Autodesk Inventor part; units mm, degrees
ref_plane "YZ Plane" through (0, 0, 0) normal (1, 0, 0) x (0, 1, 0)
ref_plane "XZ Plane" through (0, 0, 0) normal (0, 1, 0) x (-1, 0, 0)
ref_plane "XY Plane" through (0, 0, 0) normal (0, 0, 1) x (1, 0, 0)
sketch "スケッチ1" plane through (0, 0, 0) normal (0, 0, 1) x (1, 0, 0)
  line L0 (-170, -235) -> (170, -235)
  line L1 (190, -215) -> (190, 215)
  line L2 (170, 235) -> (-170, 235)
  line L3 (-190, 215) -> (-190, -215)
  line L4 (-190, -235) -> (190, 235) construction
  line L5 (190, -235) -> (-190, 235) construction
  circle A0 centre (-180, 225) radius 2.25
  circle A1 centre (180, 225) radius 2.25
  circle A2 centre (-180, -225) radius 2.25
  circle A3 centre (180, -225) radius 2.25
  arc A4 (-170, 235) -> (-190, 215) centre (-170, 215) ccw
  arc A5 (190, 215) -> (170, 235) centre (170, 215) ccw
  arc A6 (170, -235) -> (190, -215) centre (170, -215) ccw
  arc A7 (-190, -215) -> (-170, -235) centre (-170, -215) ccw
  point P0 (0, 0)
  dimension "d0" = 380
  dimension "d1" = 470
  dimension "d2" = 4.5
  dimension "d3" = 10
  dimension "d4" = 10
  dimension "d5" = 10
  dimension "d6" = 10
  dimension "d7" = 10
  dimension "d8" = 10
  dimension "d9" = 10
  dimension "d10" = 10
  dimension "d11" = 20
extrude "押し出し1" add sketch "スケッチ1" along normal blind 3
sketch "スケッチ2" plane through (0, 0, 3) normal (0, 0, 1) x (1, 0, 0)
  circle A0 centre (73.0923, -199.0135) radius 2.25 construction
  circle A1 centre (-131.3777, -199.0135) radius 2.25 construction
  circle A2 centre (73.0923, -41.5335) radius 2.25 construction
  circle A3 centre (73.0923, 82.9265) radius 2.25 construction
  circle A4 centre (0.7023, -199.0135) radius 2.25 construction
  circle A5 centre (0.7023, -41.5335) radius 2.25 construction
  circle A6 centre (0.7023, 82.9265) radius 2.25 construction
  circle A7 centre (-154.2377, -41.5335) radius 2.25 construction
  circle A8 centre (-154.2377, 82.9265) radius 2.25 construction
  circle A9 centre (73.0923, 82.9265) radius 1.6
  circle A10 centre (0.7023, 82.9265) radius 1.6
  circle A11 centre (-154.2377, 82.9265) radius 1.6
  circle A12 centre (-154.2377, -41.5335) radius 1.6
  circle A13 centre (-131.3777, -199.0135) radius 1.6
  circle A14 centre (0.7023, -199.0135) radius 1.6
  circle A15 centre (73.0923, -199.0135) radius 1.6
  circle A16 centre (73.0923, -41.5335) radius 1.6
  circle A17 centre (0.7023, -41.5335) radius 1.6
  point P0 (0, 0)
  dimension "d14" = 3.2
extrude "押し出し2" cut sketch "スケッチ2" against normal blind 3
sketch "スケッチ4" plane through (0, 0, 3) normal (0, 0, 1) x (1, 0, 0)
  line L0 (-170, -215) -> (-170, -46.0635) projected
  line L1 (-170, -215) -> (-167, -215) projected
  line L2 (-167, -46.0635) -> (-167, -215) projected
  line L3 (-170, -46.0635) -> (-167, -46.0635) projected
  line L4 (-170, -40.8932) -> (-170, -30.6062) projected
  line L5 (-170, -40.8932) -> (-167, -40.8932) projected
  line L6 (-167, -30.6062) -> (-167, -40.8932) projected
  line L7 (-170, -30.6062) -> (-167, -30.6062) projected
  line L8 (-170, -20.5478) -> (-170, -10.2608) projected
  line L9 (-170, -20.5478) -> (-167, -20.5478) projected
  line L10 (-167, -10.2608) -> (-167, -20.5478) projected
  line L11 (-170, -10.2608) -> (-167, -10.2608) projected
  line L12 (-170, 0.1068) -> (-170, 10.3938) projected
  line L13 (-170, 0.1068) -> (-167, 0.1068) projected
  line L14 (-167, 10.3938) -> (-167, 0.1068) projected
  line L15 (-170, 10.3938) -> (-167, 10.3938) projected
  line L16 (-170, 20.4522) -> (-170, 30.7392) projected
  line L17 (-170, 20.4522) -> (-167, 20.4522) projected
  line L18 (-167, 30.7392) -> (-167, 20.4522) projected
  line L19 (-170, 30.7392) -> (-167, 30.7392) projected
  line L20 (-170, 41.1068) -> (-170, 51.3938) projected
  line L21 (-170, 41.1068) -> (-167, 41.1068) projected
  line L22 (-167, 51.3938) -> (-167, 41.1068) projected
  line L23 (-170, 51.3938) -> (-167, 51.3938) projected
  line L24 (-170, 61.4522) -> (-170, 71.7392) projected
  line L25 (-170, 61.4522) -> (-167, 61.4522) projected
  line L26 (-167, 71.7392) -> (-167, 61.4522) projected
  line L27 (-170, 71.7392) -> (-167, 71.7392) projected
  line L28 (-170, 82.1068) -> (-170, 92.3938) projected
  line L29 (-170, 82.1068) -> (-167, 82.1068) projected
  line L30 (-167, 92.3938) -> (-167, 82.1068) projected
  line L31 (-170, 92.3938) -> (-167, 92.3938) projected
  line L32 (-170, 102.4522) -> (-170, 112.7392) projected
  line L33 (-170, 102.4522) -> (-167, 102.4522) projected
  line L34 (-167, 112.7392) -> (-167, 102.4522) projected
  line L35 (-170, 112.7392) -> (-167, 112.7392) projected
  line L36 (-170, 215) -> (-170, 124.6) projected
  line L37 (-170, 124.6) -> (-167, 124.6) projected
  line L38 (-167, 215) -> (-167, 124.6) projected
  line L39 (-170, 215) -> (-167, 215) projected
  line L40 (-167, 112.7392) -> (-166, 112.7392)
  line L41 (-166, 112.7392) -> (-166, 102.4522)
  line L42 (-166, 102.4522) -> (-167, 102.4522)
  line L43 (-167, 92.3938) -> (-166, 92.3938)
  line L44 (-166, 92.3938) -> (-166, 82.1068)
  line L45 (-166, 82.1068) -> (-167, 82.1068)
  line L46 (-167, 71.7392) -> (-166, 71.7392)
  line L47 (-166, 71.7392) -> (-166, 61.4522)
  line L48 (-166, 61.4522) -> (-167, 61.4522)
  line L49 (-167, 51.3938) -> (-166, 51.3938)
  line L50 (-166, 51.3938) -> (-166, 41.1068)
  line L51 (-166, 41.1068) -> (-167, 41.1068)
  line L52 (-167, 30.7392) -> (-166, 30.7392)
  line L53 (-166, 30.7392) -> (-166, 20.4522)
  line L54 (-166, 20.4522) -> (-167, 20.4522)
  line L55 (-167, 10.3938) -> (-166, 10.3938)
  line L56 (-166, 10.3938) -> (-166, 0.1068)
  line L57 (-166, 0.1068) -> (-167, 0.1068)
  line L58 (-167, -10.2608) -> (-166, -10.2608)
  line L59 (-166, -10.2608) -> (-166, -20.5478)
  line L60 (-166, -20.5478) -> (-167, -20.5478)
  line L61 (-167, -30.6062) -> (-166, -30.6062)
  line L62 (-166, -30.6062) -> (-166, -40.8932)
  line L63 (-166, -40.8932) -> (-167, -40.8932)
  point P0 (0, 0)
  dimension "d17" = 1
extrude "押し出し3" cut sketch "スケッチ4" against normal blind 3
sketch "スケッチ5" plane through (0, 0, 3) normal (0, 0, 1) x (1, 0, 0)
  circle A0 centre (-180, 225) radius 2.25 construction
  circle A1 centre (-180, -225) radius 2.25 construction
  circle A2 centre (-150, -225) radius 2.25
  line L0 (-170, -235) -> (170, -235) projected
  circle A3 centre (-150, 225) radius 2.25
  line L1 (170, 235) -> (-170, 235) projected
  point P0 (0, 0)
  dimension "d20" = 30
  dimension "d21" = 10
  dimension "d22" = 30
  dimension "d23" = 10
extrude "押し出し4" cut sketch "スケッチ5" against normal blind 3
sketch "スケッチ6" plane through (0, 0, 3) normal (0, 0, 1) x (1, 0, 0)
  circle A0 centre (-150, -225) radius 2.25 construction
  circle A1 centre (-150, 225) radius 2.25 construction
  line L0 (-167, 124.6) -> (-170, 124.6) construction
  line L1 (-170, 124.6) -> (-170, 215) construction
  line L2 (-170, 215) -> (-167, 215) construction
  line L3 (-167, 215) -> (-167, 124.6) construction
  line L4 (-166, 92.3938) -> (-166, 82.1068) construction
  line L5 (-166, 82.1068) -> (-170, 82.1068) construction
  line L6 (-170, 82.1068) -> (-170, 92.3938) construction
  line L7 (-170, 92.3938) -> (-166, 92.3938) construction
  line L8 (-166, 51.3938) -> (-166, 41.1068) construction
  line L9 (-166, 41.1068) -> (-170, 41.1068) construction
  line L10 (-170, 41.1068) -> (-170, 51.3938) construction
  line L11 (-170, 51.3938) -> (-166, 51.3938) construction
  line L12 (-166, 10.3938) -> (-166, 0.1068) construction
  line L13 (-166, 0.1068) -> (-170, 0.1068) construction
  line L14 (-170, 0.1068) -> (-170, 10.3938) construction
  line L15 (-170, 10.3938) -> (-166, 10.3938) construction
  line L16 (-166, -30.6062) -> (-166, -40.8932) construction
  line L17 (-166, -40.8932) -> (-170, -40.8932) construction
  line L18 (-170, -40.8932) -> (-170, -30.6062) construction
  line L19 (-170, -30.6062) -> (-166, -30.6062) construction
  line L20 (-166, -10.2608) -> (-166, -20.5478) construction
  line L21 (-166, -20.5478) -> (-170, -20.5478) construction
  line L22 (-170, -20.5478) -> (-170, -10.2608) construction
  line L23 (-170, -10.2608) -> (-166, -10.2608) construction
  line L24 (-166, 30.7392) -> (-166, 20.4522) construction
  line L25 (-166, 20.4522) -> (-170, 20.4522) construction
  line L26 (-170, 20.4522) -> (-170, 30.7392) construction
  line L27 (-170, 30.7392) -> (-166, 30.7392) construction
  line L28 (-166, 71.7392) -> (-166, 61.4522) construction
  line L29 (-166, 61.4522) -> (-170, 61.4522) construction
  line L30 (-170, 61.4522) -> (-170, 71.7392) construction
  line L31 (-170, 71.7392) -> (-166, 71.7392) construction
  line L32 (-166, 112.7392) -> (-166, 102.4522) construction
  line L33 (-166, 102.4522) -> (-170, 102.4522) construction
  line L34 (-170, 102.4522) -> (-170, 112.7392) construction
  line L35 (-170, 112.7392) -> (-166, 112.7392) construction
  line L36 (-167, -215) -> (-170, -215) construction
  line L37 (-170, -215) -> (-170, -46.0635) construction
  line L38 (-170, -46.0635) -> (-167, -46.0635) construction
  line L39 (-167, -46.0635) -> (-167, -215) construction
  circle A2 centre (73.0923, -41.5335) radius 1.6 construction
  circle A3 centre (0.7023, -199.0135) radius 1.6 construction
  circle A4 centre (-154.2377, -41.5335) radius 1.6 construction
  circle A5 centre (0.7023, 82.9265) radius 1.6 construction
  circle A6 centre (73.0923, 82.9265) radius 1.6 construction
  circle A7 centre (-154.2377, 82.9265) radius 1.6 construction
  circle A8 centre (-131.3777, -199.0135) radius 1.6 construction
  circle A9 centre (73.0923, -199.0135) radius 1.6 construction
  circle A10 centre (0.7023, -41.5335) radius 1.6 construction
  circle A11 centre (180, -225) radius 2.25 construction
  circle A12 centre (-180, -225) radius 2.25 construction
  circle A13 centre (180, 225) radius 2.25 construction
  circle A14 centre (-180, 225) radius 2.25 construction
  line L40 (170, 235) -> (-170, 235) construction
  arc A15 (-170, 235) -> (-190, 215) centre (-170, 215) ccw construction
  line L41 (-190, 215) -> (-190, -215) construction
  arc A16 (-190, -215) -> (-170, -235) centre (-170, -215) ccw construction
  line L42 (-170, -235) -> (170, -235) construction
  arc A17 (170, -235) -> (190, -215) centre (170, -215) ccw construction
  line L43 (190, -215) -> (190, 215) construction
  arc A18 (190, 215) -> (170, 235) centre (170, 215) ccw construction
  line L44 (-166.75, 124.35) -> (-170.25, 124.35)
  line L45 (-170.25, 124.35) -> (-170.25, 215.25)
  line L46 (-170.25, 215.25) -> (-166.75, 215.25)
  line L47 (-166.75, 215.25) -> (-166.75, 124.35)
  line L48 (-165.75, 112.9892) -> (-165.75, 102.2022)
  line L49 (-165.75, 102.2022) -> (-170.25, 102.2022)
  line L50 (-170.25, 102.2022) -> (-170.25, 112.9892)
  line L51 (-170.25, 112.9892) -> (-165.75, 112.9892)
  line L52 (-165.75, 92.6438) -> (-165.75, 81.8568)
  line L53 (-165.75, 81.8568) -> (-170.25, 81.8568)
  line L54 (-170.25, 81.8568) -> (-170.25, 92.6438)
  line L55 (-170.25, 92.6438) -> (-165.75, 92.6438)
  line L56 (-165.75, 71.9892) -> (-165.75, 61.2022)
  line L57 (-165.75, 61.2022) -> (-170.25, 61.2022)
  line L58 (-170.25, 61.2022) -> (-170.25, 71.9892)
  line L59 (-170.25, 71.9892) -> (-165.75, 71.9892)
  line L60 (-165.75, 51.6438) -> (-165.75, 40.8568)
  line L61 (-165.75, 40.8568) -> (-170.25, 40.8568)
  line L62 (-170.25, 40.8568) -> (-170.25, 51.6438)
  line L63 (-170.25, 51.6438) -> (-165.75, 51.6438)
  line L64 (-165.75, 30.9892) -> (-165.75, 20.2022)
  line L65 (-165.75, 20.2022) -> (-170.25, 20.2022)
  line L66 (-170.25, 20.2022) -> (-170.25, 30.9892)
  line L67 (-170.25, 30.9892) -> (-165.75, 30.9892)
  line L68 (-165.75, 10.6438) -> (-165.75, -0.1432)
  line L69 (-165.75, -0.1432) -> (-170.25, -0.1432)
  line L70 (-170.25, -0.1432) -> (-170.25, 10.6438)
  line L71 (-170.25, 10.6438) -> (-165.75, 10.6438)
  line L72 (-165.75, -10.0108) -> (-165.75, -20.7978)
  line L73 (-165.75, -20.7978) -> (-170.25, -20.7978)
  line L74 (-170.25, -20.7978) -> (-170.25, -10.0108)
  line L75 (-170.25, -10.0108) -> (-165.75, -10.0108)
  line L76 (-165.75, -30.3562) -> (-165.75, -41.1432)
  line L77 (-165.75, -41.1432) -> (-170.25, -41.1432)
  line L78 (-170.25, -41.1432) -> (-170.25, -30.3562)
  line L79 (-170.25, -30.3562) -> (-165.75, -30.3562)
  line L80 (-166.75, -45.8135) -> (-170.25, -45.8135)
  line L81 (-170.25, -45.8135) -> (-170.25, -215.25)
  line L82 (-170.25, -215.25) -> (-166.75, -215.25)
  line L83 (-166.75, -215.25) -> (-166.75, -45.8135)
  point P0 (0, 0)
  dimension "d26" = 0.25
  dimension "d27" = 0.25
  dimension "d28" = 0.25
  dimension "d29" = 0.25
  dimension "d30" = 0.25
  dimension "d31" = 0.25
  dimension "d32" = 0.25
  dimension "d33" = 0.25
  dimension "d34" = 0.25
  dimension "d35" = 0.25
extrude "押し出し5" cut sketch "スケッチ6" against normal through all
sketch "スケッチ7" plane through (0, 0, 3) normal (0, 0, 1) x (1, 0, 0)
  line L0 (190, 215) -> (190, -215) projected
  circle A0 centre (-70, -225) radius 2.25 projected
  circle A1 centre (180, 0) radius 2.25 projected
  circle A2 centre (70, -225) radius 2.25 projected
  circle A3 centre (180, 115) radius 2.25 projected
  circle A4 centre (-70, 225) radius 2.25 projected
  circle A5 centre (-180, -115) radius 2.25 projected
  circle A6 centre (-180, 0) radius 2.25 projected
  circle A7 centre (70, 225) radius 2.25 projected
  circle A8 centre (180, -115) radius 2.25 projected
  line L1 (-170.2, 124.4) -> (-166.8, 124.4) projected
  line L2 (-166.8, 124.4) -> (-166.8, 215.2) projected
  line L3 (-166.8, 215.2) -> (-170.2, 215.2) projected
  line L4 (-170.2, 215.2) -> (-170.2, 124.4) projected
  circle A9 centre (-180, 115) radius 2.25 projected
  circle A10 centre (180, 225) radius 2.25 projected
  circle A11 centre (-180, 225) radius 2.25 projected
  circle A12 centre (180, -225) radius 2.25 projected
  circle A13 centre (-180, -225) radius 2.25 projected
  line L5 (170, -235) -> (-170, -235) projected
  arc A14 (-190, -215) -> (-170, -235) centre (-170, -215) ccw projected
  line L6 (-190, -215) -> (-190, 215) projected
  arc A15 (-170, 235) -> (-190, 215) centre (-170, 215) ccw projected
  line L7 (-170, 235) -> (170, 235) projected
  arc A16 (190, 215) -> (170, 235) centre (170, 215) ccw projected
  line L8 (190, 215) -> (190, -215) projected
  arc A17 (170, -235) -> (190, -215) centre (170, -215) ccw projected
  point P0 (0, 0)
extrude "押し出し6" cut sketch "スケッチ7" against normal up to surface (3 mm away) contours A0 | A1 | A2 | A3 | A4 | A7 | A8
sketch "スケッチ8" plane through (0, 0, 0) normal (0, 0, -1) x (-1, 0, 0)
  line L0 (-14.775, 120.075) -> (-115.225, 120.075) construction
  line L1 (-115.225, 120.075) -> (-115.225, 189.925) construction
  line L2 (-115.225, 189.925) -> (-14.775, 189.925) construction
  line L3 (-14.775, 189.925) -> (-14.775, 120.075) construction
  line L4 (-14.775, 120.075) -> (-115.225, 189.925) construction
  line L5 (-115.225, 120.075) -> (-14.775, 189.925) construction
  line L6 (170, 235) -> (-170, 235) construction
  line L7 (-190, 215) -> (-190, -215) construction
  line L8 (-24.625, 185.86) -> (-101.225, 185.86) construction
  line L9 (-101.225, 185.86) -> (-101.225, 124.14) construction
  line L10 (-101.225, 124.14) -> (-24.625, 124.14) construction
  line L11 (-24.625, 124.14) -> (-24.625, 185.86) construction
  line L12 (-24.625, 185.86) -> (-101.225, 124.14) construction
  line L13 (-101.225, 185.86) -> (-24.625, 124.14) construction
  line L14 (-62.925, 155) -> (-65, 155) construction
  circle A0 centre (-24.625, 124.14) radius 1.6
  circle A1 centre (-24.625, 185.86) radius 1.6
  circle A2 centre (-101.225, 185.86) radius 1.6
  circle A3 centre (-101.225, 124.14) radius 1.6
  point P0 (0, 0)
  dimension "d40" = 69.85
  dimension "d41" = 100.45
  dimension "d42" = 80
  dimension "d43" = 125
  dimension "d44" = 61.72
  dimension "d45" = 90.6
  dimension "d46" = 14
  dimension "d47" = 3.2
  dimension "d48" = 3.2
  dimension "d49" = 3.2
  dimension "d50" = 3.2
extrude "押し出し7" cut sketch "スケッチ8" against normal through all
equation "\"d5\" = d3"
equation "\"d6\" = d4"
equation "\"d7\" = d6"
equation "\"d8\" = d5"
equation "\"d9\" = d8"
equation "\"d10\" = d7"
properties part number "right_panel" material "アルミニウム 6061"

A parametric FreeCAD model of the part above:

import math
import FreeCAD as App
import Part
import Sketcher
Q = App.Units.Quantity

doc = App.newDocument("Part")
body = doc.addObject("PartDesign::Body", "Body")

sketch1 = doc.addObject("Sketcher::SketchObject", "Sketch")
body.addObject(sketch1)
sketch1.AttachmentSupport = (doc.XY_Plane, [""])
sketch1.MapMode = "FlatFace"
sketch1.addGeometry(Part.ArcOfCircle(Part.Circle(App.Vector(-170, -215, 0), App.Vector(0, 0, 1), 20), math.radians(180), math.radians(270)), False)
sketch1.addGeometry(Part.LineSegment(App.Vector(-170, -235, 0), App.Vector(170, -235, 0)), False)
sketch1.addGeometry(Part.ArcOfCircle(Part.Circle(App.Vector(170, -215, 0), App.Vector(0, 0, 1), 20), math.radians(-90), math.radians(0)), False)
sketch1.addGeometry(Part.LineSegment(App.Vector(190, -215, 0), App.Vector(190, 215, 0)), False)
sketch1.addGeometry(Part.ArcOfCircle(Part.Circle(App.Vector(170, 215, 0), App.Vector(0, 0, 1), 20), math.radians(0), math.radians(90)), False)
sketch1.addGeometry(Part.LineSegment(App.Vector(170, 235, 0), App.Vector(-170, 235, 0)), False)
sketch1.addGeometry(Part.ArcOfCircle(Part.Circle(App.Vector(-170, 215, 0), App.Vector(0, 0, 1), 20), math.radians(90), math.radians(180)), False)
sketch1.addGeometry(Part.LineSegment(App.Vector(-190, 215, 0), App.Vector(-190, -215, 0)), False)
sketch1.addGeometry(Part.Circle(App.Vector(-180, -225, 0), App.Vector(0, 0, 1), 2.2), False)
sketch1.addGeometry(Part.Circle(App.Vector(180, -225, 0), App.Vector(0, 0, 1), 2.2), False)
sketch1.addGeometry(Part.Circle(App.Vector(-180, 225, 0), App.Vector(0, 0, 1), 2.2), False)
sketch1.addGeometry(Part.Circle(App.Vector(180, 225, 0), App.Vector(0, 0, 1), 2.2), False)
sketch1.addConstraint(Sketcher.Constraint("Tangent", 0, 2, 1, 1))
sketch1.addConstraint(Sketcher.Constraint("Tangent", 1, 2, 2, 1))
sketch1.addConstraint(Sketcher.Constraint("Tangent", 2, 2, 3, 1))
sketch1.addConstraint(Sketcher.Constraint("Tangent", 3, 2, 4, 1))
sketch1.addConstraint(Sketcher.Constraint("Tangent", 4, 2, 5, 1))
sketch1.addConstraint(Sketcher.Constraint("Tangent", 5, 2, 6, 1))
sketch1.addConstraint(Sketcher.Constraint("Tangent", 6, 2, 7, 1))
sketch1.addConstraint(Sketcher.Constraint("Tangent", 7, 2, 0, 1))
sketch1.addConstraint(Sketcher.Constraint("Horizontal", 1))
sketch1.addConstraint(Sketcher.Constraint("Vertical", 3))
sketch1.addConstraint(Sketcher.Constraint("Horizontal", 5))
sketch1.addConstraint(Sketcher.Constraint("Vertical", 7))
sketch1.addConstraint(Sketcher.Constraint("Equal", 0, 2))
sketch1.addConstraint(Sketcher.Constraint("Equal", 2, 4))
sketch1.addConstraint(Sketcher.Constraint("Equal", 4, 6))
sketch1.addConstraint(Sketcher.Constraint("Equal", 8, 9))
sketch1.addConstraint(Sketcher.Constraint("Equal", 9, 10))
sketch1.addConstraint(Sketcher.Constraint("Equal", 10, 11))
sketch1.addConstraint(Sketcher.Constraint("Symmetric", 0, 3, 4, 3, -1, 1))
sketch1.addConstraint(Sketcher.Constraint("Symmetric", 9, 3, 10, 3, -1, 1))
sketch1.addConstraint(Sketcher.Constraint("Symmetric", 8, 3, 11, 3, -1, 1))
sketch1.addConstraint(Sketcher.Constraint("Symmetric", 8, 3, 9, 3, -2))
sketch1.addConstraint(Sketcher.Constraint("Radius", 0, Q("20 mm")))
sketch1.addConstraint(Sketcher.Constraint("Diameter", 8, Q("4.5 mm")))
sketch1.addConstraint(Sketcher.Constraint("DistanceX", 8, 3, 0, 3, Q("10 mm")))
sketch1.addConstraint(Sketcher.Constraint("DistanceY", 8, 3, 0, 3, Q("10 mm")))
sketch1.addConstraint(Sketcher.Constraint("DistanceX", 1, 1, 1, 2, Q("340 mm")))
sketch1.addConstraint(Sketcher.Constraint("DistanceY", 3, 1, 3, 2, Q("430 mm")))
pad1 = doc.addObject("PartDesign::Pad", "Pad")
body.addObject(pad1)
pad1.Profile = sketch1
pad1.Length = 3

sketch2 = doc.addObject("Sketcher::SketchObject", "Sketch001")
body.addObject(sketch2)
sketch2.AttachmentSupport = (doc.XY_Plane, [""])
sketch2.MapMode = "FlatFace"
sketch2.AttachmentOffset = App.Placement(App.Vector(0, 0, 3), App.Rotation())
sketch2.addGeometry(Part.Circle(App.Vector(73.1, 82.9, 0), App.Vector(0, 0, 1), 1.6), False)
sketch2.addGeometry(Part.Circle(App.Vector(0.7, 82.9, 0), App.Vector(0, 0, 1), 1.6), False)
sketch2.addGeometry(Part.Circle(App.Vector(-154.2, 82.9, 0), App.Vector(0, 0, 1), 1.6), False)
sketch2.addGeometry(Part.Circle(App.Vector(-154.2, -41.5, 0), App.Vector(0, 0, 1), 1.6), False)
sketch2.addGeometry(Part.Circle(App.Vector(-131.4, -199, 0), App.Vector(0, 0, 1), 1.6), False)
sketch2.addGeometry(Part.Circle(App.Vector(0.7, -199, 0), App.Vector(0, 0, 1), 1.6), False)
sketch2.addGeometry(Part.Circle(App.Vector(73.1, -199, 0), App.Vector(0, 0, 1), 1.6), False)
sketch2.addGeometry(Part.Circle(App.Vector(73.1, -41.5, 0), App.Vector(0, 0, 1), 1.6), False)
sketch2.addGeometry(Part.Circle(App.Vector(0.7, -41.5, 0), App.Vector(0, 0, 1), 1.6), False)
sketch2.addConstraint(Sketcher.Constraint("Equal", 0, 1))
sketch2.addConstraint(Sketcher.Constraint("Equal", 1, 2))
sketch2.addConstraint(Sketcher.Constraint("Equal", 2, 3))
sketch2.addConstraint(Sketcher.Constraint("Equal", 3, 4))
sketch2.addConstraint(Sketcher.Constraint("Equal", 4, 5))
sketch2.addConstraint(Sketcher.Constraint("Equal", 5, 6))
sketch2.addConstraint(Sketcher.Constraint("Equal", 6, 7))
sketch2.addConstraint(Sketcher.Constraint("Equal", 7, 8))
sketch2.addConstraint(Sketcher.Constraint("Horizontal", 0, 3, 1, 3))
sketch2.addConstraint(Sketcher.Constraint("Horizontal", 1, 3, 2, 3))
sketch2.addConstraint(Sketcher.Constraint("Horizontal", 4, 3, 5, 3))
sketch2.addConstraint(Sketcher.Constraint("Horizontal", 5, 3, 6, 3))
sketch2.addConstraint(Sketcher.Constraint("Horizontal", 3, 3, 7, 3))
sketch2.addConstraint(Sketcher.Constraint("Horizontal", 7, 3, 8, 3))
sketch2.addConstraint(Sketcher.Constraint("Vertical", 2, 3, 3, 3))
sketch2.addConstraint(Sketcher.Constraint("Vertical", 1, 3, 5, 3))
sketch2.addConstraint(Sketcher.Constraint("Vertical", 0, 3, 6, 3))
sketch2.addConstraint(Sketcher.Constraint("Vertical", 6, 3, 7, 3))
sketch2.addConstraint(Sketcher.Constraint("Vertical", 5, 3, 8, 3))
sketch2.addConstraint(Sketcher.Constraint("Diameter", 0, Q("3.2 mm")))
sketch2.addConstraint(Sketcher.Constraint("DistanceX", 1, 3, 0, 3, Q("72.39 mm")))
sketch2.addConstraint(Sketcher.Constraint("DistanceX", 2, 3, 1, 3, Q("154.94 mm")))
sketch2.addConstraint(Sketcher.Constraint("DistanceY", 3, 3, 2, 3, Q("124.46 mm")))
sketch2.addConstraint(Sketcher.Constraint("DistanceX", 3, 3, 4, 3, Q("22.86 mm")))
sketch2.addConstraint(Sketcher.Constraint("DistanceY", 4, 3, 3, 3, Q("157.48 mm")))
sketch2.addConstraint(Sketcher.Constraint("DistanceX", -1, 1, 0, 3, Q("73.0923 mm")))
sketch2.addConstraint(Sketcher.Constraint("DistanceY", -1, 1, 0, 3, Q("82.9265 mm")))
pocket1 = doc.addObject("PartDesign::Pocket", "Pocket")
body.addObject(pocket1)
pocket1.Profile = sketch2
pocket1.Length = 3

sketch3 = doc.addObject("Sketcher::SketchObject", "Sketch002")
body.addObject(sketch3)
sketch3.AttachmentSupport = (doc.XY_Plane, [""])
sketch3.MapMode = "FlatFace"
sketch3.AttachmentOffset = App.Placement(App.Vector(0, 0, 3), App.Rotation())
sketch3.addGeometry(Part.LineSegment(App.Vector(-170, -46.1, 0), App.Vector(-170, -215, 0)), False)
sketch3.addGeometry(Part.LineSegment(App.Vector(-170, -215, 0), App.Vector(-167, -215, 0)), False)
sketch3.addGeometry(Part.LineSegment(App.Vector(-167, -215, 0), App.Vector(-167, -46.1, 0)), False)
sketch3.addGeometry(Part.LineSegment(App.Vector(-167, -46.1, 0), App.Vector(-170, -46.1, 0)), False)
sketch3.addGeometry(Part.LineSegment(App.Vector(-170, -30.6, 0), App.Vector(-170, -40.9, 0)), False)
sketch3.addGeometry(Part.LineSegment(App.Vector(-170, -40.9, 0), App.Vector(-166, -40.9, 0)), False)
sketch3.addGeometry(Part.LineSegment(App.Vector(-166, -40.9, 0), App.Vector(-166, -30.6, 0)), False)
sketch3.addGeometry(Part.LineSegment(App.Vector(-166, -30.6, 0), App.Vector(-170, -30.6, 0)), False)
sketch3.addGeometry(Part.LineSegment(App.Vector(-170, -10.3, 0), App.Vector(-170, -20.5, 0)), False)
sketch3.addGeometry(Part.LineSegment(App.Vector(-170, -20.5, 0), App.Vector(-166, -20.5, 0)), False)
sketch3.addGeometry(Part.LineSegment(App.Vector(-166, -20.5, 0), App.Vector(-166, -10.3, 0)), False)
sketch3.addGeometry(Part.LineSegment(App.Vector(-166, -10.3, 0), App.Vector(-170, -10.3, 0)), False)
sketch3.addGeometry(Part.LineSegment(App.Vector(-170, 10.4, 0), App.Vector(-170, 0.1, 0)), False)
sketch3.addGeometry(Part.LineSegment(App.Vector(-170, 0.1, 0), App.Vector(-166, 0.1, 0)), False)
sketch3.addGeometry(Part.LineSegment(App.Vector(-166, 0.1, 0), App.Vector(-166, 10.4, 0)), False)
sketch3.addGeometry(Part.LineSegment(App.Vector(-166, 10.4, 0), App.Vector(-170, 10.4, 0)), False)
sketch3.addGeometry(Part.LineSegment(App.Vector(-170, 30.7, 0), App.Vector(-170, 20.5, 0)), False)
sketch3.addGeometry(Part.LineSegment(App.Vector(-170, 20.5, 0), App.Vector(-166, 20.5, 0)), False)
sketch3.addGeometry(Part.LineSegment(App.Vector(-166, 20.5, 0), App.Vector(-166, 30.7, 0)), False)
sketch3.addGeometry(Part.LineSegment(App.Vector(-166, 30.7, 0), App.Vector(-170, 30.7, 0)), False)
sketch3.addGeometry(Part.LineSegment(App.Vector(-170, 51.4, 0), App.Vector(-170, 41.1, 0)), False)
sketch3.addGeometry(Part.LineSegment(App.Vector(-170, 41.1, 0), App.Vector(-166, 41.1, 0)), False)
sketch3.addGeometry(Part.LineSegment(App.Vector(-166, 41.1, 0), App.Vector(-166, 51.4, 0)), False)
sketch3.addGeometry(Part.LineSegment(App.Vector(-166, 51.4, 0), App.Vector(-170, 51.4, 0)), False)
sketch3.addGeometry(Part.LineSegment(App.Vector(-170, 71.7, 0), App.Vector(-170, 61.5, 0)), False)
sketch3.addGeometry(Part.LineSegment(App.Vector(-170, 61.5, 0), App.Vector(-166, 61.5, 0)), False)
sketch3.addGeometry(Part.LineSegment(App.Vector(-166, 61.5, 0), App.Vector(-166, 71.7, 0)), False)
sketch3.addGeometry(Part.LineSegment(App.Vector(-166, 71.7, 0), App.Vector(-170, 71.7, 0)), False)
sketch3.addGeometry(Part.LineSegment(App.Vector(-170, 92.4, 0), App.Vector(-170, 82.1, 0)), False)
sketch3.addGeometry(Part.LineSegment(App.Vector(-170, 82.1, 0), App.Vector(-166, 82.1, 0)), False)
sketch3.addGeometry(Part.LineSegment(App.Vector(-166, 82.1, 0), App.Vector(-166, 92.4, 0)), False)
sketch3.addGeometry(Part.LineSegment(App.Vector(-166, 92.4, 0), App.Vector(-170, 92.4, 0)), False)
sketch3.addGeometry(Part.LineSegment(App.Vector(-170, 112.7, 0), App.Vector(-170, 102.5, 0)), False)
sketch3.addGeometry(Part.LineSegment(App.Vector(-170, 102.5, 0), App.Vector(-166, 102.5, 0)), False)
sketch3.addGeometry(Part.LineSegment(App.Vector(-166, 102.5, 0), App.Vector(-166, 112.7, 0)), False)
sketch3.addGeometry(Part.LineSegment(App.Vector(-166, 112.7, 0), App.Vector(-170, 112.7, 0)), False)
sketch3.addGeometry(Part.LineSegment(App.Vector(-167, 215, 0), App.Vector(-170, 215, 0)), False)
sketch3.addGeometry(Part.LineSegment(App.Vector(-170, 215, 0), App.Vector(-170, 124.6, 0)), False)
sketch3.addGeometry(Part.LineSegment(App.Vector(-170, 124.6, 0), App.Vector(-167, 124.6, 0)), False)
sketch3.addGeometry(Part.LineSegment(App.Vector(-167, 124.6, 0), App.Vector(-167, 215, 0)), False)
sketch3.addConstraint(Sketcher.Constraint("Coincident", 0, 2, 1, 1))
sketch3.addConstraint(Sketcher.Constraint("Coincident", 1, 2, 2, 1))
sketch3.addConstraint(Sketcher.Constraint("Coincident", 2, 2, 3, 1))
sketch3.addConstraint(Sketcher.Constraint("Coincident", 3, 2, 0, 1))
sketch3.addConstraint(Sketcher.Constraint("Coincident", 4, 2, 5, 1))
sketch3.addConstraint(Sketcher.Constraint("Coincident", 5, 2, 6, 1))
sketch3.addConstraint(Sketcher.Constraint("Coincident", 6, 2, 7, 1))
sketch3.addConstraint(Sketcher.Constraint("Coincident", 7, 2, 4, 1))
sketch3.addConstraint(Sketcher.Constraint("Coincident", 8, 2, 9, 1))
sketch3.addConstraint(Sketcher.Constraint("Coincident", 9, 2, 10, 1))
sketch3.addConstraint(Sketcher.Constraint("Coincident", 10, 2, 11, 1))
sketch3.addConstraint(Sketcher.Constraint("Coincident", 11, 2, 8, 1))
sketch3.addConstraint(Sketcher.Constraint("Coincident", 12, 2, 13, 1))
sketch3.addConstraint(Sketcher.Constraint("Coincident", 13, 2, 14, 1))
sketch3.addConstraint(Sketcher.Constraint("Coincident", 14, 2, 15, 1))
sketch3.addConstraint(Sketcher.Constraint("Coincident", 15, 2, 12, 1))
sketch3.addConstraint(Sketcher.Constraint("Coincident", 16, 2, 17, 1))
sketch3.addConstraint(Sketcher.Constraint("Coincident", 17, 2, 18, 1))
sketch3.addConstraint(Sketcher.Constraint("Coincident", 18, 2, 19, 1))
sketch3.addConstraint(Sketcher.Constraint("Coincident", 19, 2, 16, 1))
sketch3.addConstraint(Sketcher.Constraint("Coincident", 20, 2, 21, 1))
sketch3.addConstraint(Sketcher.Constraint("Coincident", 21, 2, 22, 1))
sketch3.addConstraint(Sketcher.Constraint("Coincident", 22, 2, 23, 1))
sketch3.addConstraint(Sketcher.Constraint("Coincident", 23, 2, 20, 1))
sketch3.addConstraint(Sketcher.Constraint("Coincident", 24, 2, 25, 1))
sketch3.addConstraint(Sketcher.Constraint("Coincident", 25, 2, 26, 1))
sketch3.addConstraint(Sketcher.Constraint("Coincident", 26, 2, 27, 1))
sketch3.addConstraint(Sketcher.Constraint("Coincident", 27, 2, 24, 1))
sketch3.addConstraint(Sketcher.Constraint("Coincident", 28, 2, 29, 1))
sketch3.addConstraint(Sketcher.Constraint("Coincident", 29, 2, 30, 1))
sketch3.addConstraint(Sketcher.Constraint("Coincident", 30, 2, 31, 1))
sketch3.addConstraint(Sketcher.Constraint("Coincident", 31, 2, 28, 1))
sketch3.addConstraint(Sketcher.Constraint("Coincident", 32, 2, 33, 1))
sketch3.addConstraint(Sketcher.Constraint("Coincident", 33, 2, 34, 1))
sketch3.addConstraint(Sketcher.Constraint("Coincident", 34, 2, 35, 1))
sketch3.addConstraint(Sketcher.Constraint("Coincident", 35, 2, 32, 1))
sketch3.addConstraint(Sketcher.Constraint("Coincident", 36, 2, 37, 1))
sketch3.addConstraint(Sketcher.Constraint("Coincident", 37, 2, 38, 1))
sketch3.addConstraint(Sketcher.Constraint("Coincident", 38, 2, 39, 1))
sketch3.addConstraint(Sketcher.Constraint("Coincident", 39, 2, 36, 1))
sketch3.addConstraint(Sketcher.Constraint("Vertical", 0))
sketch3.addConstraint(Sketcher.Constraint("Horizontal", 1))
sketch3.addConstraint(Sketcher.Constraint("Vertical", 2))
sketch3.addConstraint(Sketcher.Constraint("Horizontal", 3))
sketch3.addConstraint(Sketcher.Constraint("Vertical", 4))
sketch3.addConstraint(Sketcher.Constraint("Horizontal", 5))
sketch3.addConstraint(Sketcher.Constraint("Vertical", 6))
sketch3.addConstraint(Sketcher.Constraint("Horizontal", 7))
sketch3.addConstraint(Sketcher.Constraint("Vertical", 8))
sketch3.addConstraint(Sketcher.Constraint("Horizontal", 9))
sketch3.addConstraint(Sketcher.Constraint("Vertical", 10))
sketch3.addConstraint(Sketcher.Constraint("Horizontal", 11))
sketch3.addConstraint(Sketcher.Constraint("Vertical", 12))
sketch3.addConstraint(Sketcher.Constraint("Horizontal", 13))
sketch3.addConstraint(Sketcher.Constraint("Vertical", 14))
sketch3.addConstraint(Sketcher.Constraint("Horizontal", 15))
sketch3.addConstraint(Sketcher.Constraint("Vertical", 16))
sketch3.addConstraint(Sketcher.Constraint("Horizontal", 17))
sketch3.addConstraint(Sketcher.Constraint("Vertical", 18))
sketch3.addConstraint(Sketcher.Constraint("Horizontal", 19))
sketch3.addConstraint(Sketcher.Constraint("Vertical", 20))
sketch3.addConstraint(Sketcher.Constraint("Horizontal", 21))
sketch3.addConstraint(Sketcher.Constraint("Vertical", 22))
sketch3.addConstraint(Sketcher.Constraint("Horizontal", 23))
sketch3.addConstraint(Sketcher.Constraint("Vertical", 24))
sketch3.addConstraint(Sketcher.Constraint("Horizontal", 25))
sketch3.addConstraint(Sketcher.Constraint("Vertical", 26))
sketch3.addConstraint(Sketcher.Constraint("Horizontal", 27))
sketch3.addConstraint(Sketcher.Constraint("Vertical", 28))
sketch3.addConstraint(Sketcher.Constraint("Horizontal", 29))
sketch3.addConstraint(Sketcher.Constraint("Vertical", 30))
sketch3.addConstraint(Sketcher.Constraint("Horizontal", 31))
sketch3.addConstraint(Sketcher.Constraint("Vertical", 32))
sketch3.addConstraint(Sketcher.Constraint("Horizontal", 33))
sketch3.addConstraint(Sketcher.Constraint("Vertical", 34))
sketch3.addConstraint(Sketcher.Constraint("Horizontal", 35))
sketch3.addConstraint(Sketcher.Constraint("Horizontal", 36))
sketch3.addConstraint(Sketcher.Constraint("Vertical", 37))
sketch3.addConstraint(Sketcher.Constraint("Horizontal", 38))
sketch3.addConstraint(Sketcher.Constraint("Vertical", 39))
sketch3.addConstraint(Sketcher.Constraint("Symmetric", 0, 2, 36, 2, -1))
sketch3.addConstraint(Sketcher.Constraint("Vertical", 3, 2, 4, 2))
sketch3.addConstraint(Sketcher.Constraint("Vertical", 7, 2, 8, 2))
sketch3.addConstraint(Sketcher.Constraint("Vertical", 6, 2, 9, 2))
sketch3.addConstraint(Sketcher.Constraint("Vertical", 11, 2, 12, 2))
sketch3.addConstraint(Sketcher.Constraint("Vertical", 10, 2, 13, 2))
sketch3.addConstraint(Sketcher.Constraint("Vertical", 15, 2, 16, 2))
sketch3.addConstraint(Sketcher.Constraint("Vertical", 14, 2, 17, 2))
sketch3.addConstraint(Sketcher.Constraint("Vertical", 19, 2, 20, 2))
sketch3.addConstraint(Sketcher.Constraint("Vertical", 18, 2, 21, 2))
sketch3.addConstraint(Sketcher.Constraint("Vertical", 23, 2, 24, 2))
sketch3.addConstraint(Sketcher.Constraint("Vertical", 22, 2, 25, 2))
sketch3.addConstraint(Sketcher.Constraint("Vertical", 27, 2, 28, 2))
sketch3.addConstraint(Sketcher.Constraint("Vertical", 26, 2, 29, 2))
sketch3.addConstraint(Sketcher.Constraint("Vertical", 31, 2, 32, 2))
sketch3.addConstraint(Sketcher.Constraint("Vertical", 30, 2, 33, 2))
sketch3.addConstraint(Sketcher.Constraint("Vertical", 2, 2, 38, 2))
sketch3.addConstraint(Sketcher.Constraint("Equal", 6, 8))
sketch3.addConstraint(Sketcher.Constraint("Equal", 10, 12))
sketch3.addConstraint(Sketcher.Constraint("Equal", 14, 16))
sketch3.addConstraint(Sketcher.Constraint("Equal", 18, 20))
sketch3.addConstraint(Sketcher.Constraint("Equal", 22, 24))
sketch3.addConstraint(Sketcher.Constraint("Equal", 26, 28))
sketch3.addConstraint(Sketcher.Constraint("Equal", 30, 32))
sketch3.addConstraint(Sketcher.Constraint("DistanceX", 2, 2, 5, 2, Q("1 mm")))
sketch3.addConstraint(Sketcher.Constraint("DistanceX", 1, 1, 1, 2, Q("3 mm")))
sketch3.addConstraint(Sketcher.Constraint("DistanceY", 37, 2, 37, 1, Q("90.4 mm")))
sketch3.addConstraint(Sketcher.Constraint("DistanceX", 0, 2, -1, 1, Q("170 mm")))
sketch3.addConstraint(Sketcher.Constraint("DistanceY", 0, 2, -1, 1, Q("215 mm")))
sketch3.addConstraint(Sketcher.Constraint("DistanceY", 4, 2, 4, 1, Q("10.287 mm")))
sketch3.addConstraint(Sketcher.Constraint("DistanceY", 0, 2, 0, 1, Q("168.9365 mm")))
sketch3.addConstraint(Sketcher.Constraint("DistanceY", 7, 2, 12, 2, Q("30.713 mm")))
sketch3.addConstraint(Sketcher.Constraint("DistanceY", 11, 2, 16, 2, Q("30.713 mm")))
sketch3.addConstraint(Sketcher.Constraint("DistanceY", 15, 2, 20, 2, Q("30.713 mm")))
sketch3.addConstraint(Sketcher.Constraint("DistanceY", 19, 2, 24, 2, Q("30.713 mm")))
sketch3.addConstraint(Sketcher.Constraint("DistanceY", 23, 2, 28, 2, Q("30.713 mm")))
sketch3.addConstraint(Sketcher.Constraint("DistanceY", 27, 2, 32, 2, Q("30.713 mm")))
sketch3.addConstraint(Sketcher.Constraint("DistanceY", 4, 2, -1, 1, Q("40.8932 mm")))
sketch3.addConstraint(Sketcher.Constraint("DistanceY", 8, 2, -1, 1, Q("20.5478 mm")))
pocket2 = doc.addObject("PartDesign::Pocket", "Pocket001")
body.addObject(pocket2)
pocket2.Profile = sketch3
pocket2.Length = 3

sketch4 = doc.addObject("Sketcher::SketchObject", "Sketch003")
body.addObject(sketch4)
sketch4.AttachmentSupport = (doc.XY_Plane, [""])
sketch4.MapMode = "FlatFace"
sketch4.AttachmentOffset = App.Placement(App.Vector(0, 0, 3), App.Rotation())
sketch4.addGeometry(Part.Circle(App.Vector(-150, -225, 0), App.Vector(0, 0, 1), 2.2), False)
sketch4.addGeometry(Part.Circle(App.Vector(-150, 225, 0), App.Vector(0, 0, 1), 2.2), False)
sketch4.addConstraint(Sketcher.Constraint("Equal", 0, 1))
sketch4.addConstraint(Sketcher.Constraint("Symmetric", 0, 3, 1, 3, -1))
sketch4.addConstraint(Sketcher.Constraint("Diameter", 0, Q("4.5 mm")))
sketch4.addConstraint(Sketcher.Constraint("DistanceX", 0, 3, -1, 1, Q("150 mm")))
sketch4.addConstraint(Sketcher.Constraint("DistanceY", 0, 3, -1, 1, Q("225 mm")))
pocket3 = doc.addObject("PartDesign::Pocket", "Pocket002")
body.addObject(pocket3)
pocket3.Profile = sketch4
pocket3.Length = 3

sketch5 = doc.addObject("Sketcher::SketchObject", "Sketch004")
body.addObject(sketch5)
sketch5.AttachmentSupport = (doc.XY_Plane, [""])
sketch5.MapMode = "FlatFace"
sketch5.AttachmentOffset = App.Placement(App.Vector(0, 0, 3), App.Rotation())
sketch5.addGeometry(Part.LineSegment(App.Vector(-170.2, 124.3, 0), App.Vector(-166.8, 124.3, 0)), False)
sketch5.addGeometry(Part.LineSegment(App.Vector(-166.8, 124.3, 0), App.Vector(-166.8, 215.2, 0)), False)
sketch5.addGeometry(Part.LineSegment(App.Vector(-166.8, 215.2, 0), App.Vector(-170.2, 215.2, 0)), False)
sketch5.addGeometry(Part.LineSegment(App.Vector(-170.2, 215.2, 0), App.Vector(-170.2, 124.3, 0)), False)
sketch5.addGeometry(Part.LineSegment(App.Vector(-165.8, 102.2, 0), App.Vector(-165.8, 113, 0)), False)
sketch5.addGeometry(Part.LineSegment(App.Vector(-165.8, 113, 0), App.Vector(-170.2, 113, 0)), False)
sketch5.addGeometry(Part.LineSegment(App.Vector(-170.2, 113, 0), App.Vector(-170.2, 102.2, 0)), False)
sketch5.addGeometry(Part.LineSegment(App.Vector(-170.2, 102.2, 0), App.Vector(-165.8, 102.2, 0)), False)
sketch5.addGeometry(Part.LineSegment(App.Vector(-165.8, 81.9, 0), App.Vector(-165.8, 92.6, 0)), False)
sketch5.addGeometry(Part.LineSegment(App.Vector(-165.8, 92.6, 0), App.Vector(-170.2, 92.6, 0)), False)
sketch5.addGeometry(Part.LineSegment(App.Vector(-170.2, 92.6, 0), App.Vector(-170.2, 81.9, 0)), False)
sketch5.addGeometry(Part.LineSegment(App.Vector(-170.2, 81.9, 0), App.Vector(-165.8, 81.9, 0)), False)
sketch5.addGeometry(Part.LineSegment(App.Vector(-165.8, 61.2, 0), App.Vector(-165.8, 72, 0)), False)
sketch5.addGeometry(Part.LineSegment(App.Vector(-165.8, 72, 0), App.Vector(-170.2, 72, 0)), False)
sketch5.addGeometry(Part.LineSegment(App.Vector(-170.2, 72, 0), App.Vector(-170.2, 61.2, 0)), False)
sketch5.addGeometry(Part.LineSegment(App.Vector(-170.2, 61.2, 0), App.Vector(-165.8, 61.2, 0)), False)
sketch5.addGeometry(Part.LineSegment(App.Vector(-165.8, 40.9, 0), App.Vector(-165.8, 51.6, 0)), False)
sketch5.addGeometry(Part.LineSegment(App.Vector(-165.8, 51.6, 0), App.Vector(-170.2, 51.6, 0)), False)
sketch5.addGeometry(Part.LineSegment(App.Vector(-170.2, 51.6, 0), App.Vector(-170.2, 40.9, 0)), False)
sketch5.addGeometry(Part.LineSegment(App.Vector(-170.2, 40.9, 0), App.Vector(-165.8, 40.9, 0)), False)
sketch5.addGeometry(Part.LineSegment(App.Vector(-165.8, 20.2, 0), App.Vector(-165.8, 31, 0)), False)
sketch5.addGeometry(Part.LineSegment(App.Vector(-165.8, 31, 0), App.Vector(-170.2, 31, 0)), False)
sketch5.addGeometry(Part.LineSegment(App.Vector(-170.2, 31, 0), App.Vector(-170.2, 20.2, 0)), False)
sketch5.addGeometry(Part.LineSegment(App.Vector(-170.2, 20.2, 0), App.Vector(-165.8, 20.2, 0)), False)
sketch5.addGeometry(Part.LineSegment(App.Vector(-165.8, -0.1, 0), App.Vector(-165.8, 10.6, 0)), False)
sketch5.addGeometry(Part.LineSegment(App.Vector(-165.8, 10.6, 0), App.Vector(-170.2, 10.6, 0)), False)
sketch5.addGeometry(Part.LineSegment(App.Vector(-170.2, 10.6, 0), App.Vector(-170.2, -0.1, 0)), False)
sketch5.addGeometry(Part.LineSegment(App.Vector(-170.2, -0.1, 0), App.Vector(-165.8, -0.1, 0)), False)
sketch5.addGeometry(Part.LineSegment(App.Vector(-165.8, -20.8, 0), App.Vector(-165.8, -10, 0)), False)
sketch5.addGeometry(Part.LineSegment(App.Vector(-165.8, -10, 0), App.Vector(-170.2, -10, 0)), False)
sketch5.addGeometry(Part.LineSegment(App.Vector(-170.2, -10, 0), App.Vector(-170.2, -20.8, 0)), False)
sketch5.addGeometry(Part.LineSegment(App.Vector(-170.2, -20.8, 0), App.Vector(-165.8, -20.8, 0)), False)
sketch5.addGeometry(Part.LineSegment(App.Vector(-165.8, -41.1, 0), App.Vector(-165.8, -30.4, 0)), False)
sketch5.addGeometry(Part.LineSegment(App.Vector(-165.8, -30.4, 0), App.Vector(-170.2, -30.4, 0)), False)
sketch5.addGeometry(Part.LineSegment(App.Vector(-170.2, -30.4, 0), App.Vector(-170.2, -41.1, 0)), False)
sketch5.addGeometry(Part.LineSegment(App.Vector(-170.2, -41.1, 0), App.Vector(-165.8, -41.1, 0)), False)
sketch5.addGeometry(Part.LineSegment(App.Vector(-166.8, -215.2, 0), App.Vector(-166.8, -45.8, 0)), False)
sketch5.addGeometry(Part.LineSegment(App.Vector(-166.8, -45.8, 0), App.Vector(-170.2, -45.8, 0)), False)
sketch5.addGeometry(Part.LineSegment(App.Vector(-170.2, -45.8, 0), App.Vector(-170.2, -215.2, 0)), False)
sketch5.addGeometry(Part.LineSegment(App.Vector(-170.2, -215.2, 0), App.Vector(-166.8, -215.2, 0)), False)
sketch5.addConstraint(Sketcher.Constraint("Coincident", 0, 2, 1, 1))
sketch5.addConstraint(Sketcher.Constraint("Coincident", 1, 2, 2, 1))
sketch5.addConstraint(Sketcher.Constraint("Coincident", 2, 2, 3, 1))
sketch5.addConstraint(Sketcher.Constraint("Coincident", 3, 2, 0, 1))
sketch5.addConstraint(Sketcher.Constraint("Coincident", 4, 2, 5, 1))
sketch5.addConstraint(Sketcher.Constraint("Coincident", 5, 2, 6, 1))
sketch5.addConstraint(Sketcher.Constraint("Coincident", 6, 2, 7, 1))
sketch5.addConstraint(Sketcher.Constraint("Coincident", 7, 2, 4, 1))
sketch5.addConstraint(Sketcher.Constraint("Coincident", 8, 2, 9, 1))
sketch5.addConstraint(Sketcher.Constraint("Coincident", 9, 2, 10, 1))
sketch5.addConstraint(Sketcher.Constraint("Coincident", 10, 2, 11, 1))
sketch5.addConstraint(Sketcher.Constraint("Coincident", 11, 2, 8, 1))
sketch5.addConstraint(Sketcher.Constraint("Coincident", 12, 2, 13, 1))
sketch5.addConstraint(Sketcher.Constraint("Coincident", 13, 2, 14, 1))
sketch5.addConstraint(Sketcher.Constraint("Coincident", 14, 2, 15, 1))
sketch5.addConstraint(Sketcher.Constraint("Coincident", 15, 2, 12, 1))
sketch5.addConstraint(Sketcher.Constraint("Coincident", 16, 2, 17, 1))
sketch5.addConstraint(Sketcher.Constraint("Coincident", 17, 2, 18, 1))
sketch5.addConstraint(Sketcher.Constraint("Coincident", 18, 2, 19, 1))
sketch5.addConstraint(Sketcher.Constraint("Coincident", 19, 2, 16, 1))
sketch5.addConstraint(Sketcher.Constraint("Coincident", 20, 2, 21, 1))
sketch5.addConstraint(Sketcher.Constraint("Coincident", 21, 2, 22, 1))
sketch5.addConstraint(Sketcher.Constraint("Coincident", 22, 2, 23, 1))
sketch5.addConstraint(Sketcher.Constraint("Coincident", 23, 2, 20, 1))
sketch5.addConstraint(Sketcher.Constraint("Coincident", 24, 2, 25, 1))
sketch5.addConstraint(Sketcher.Constraint("Coincident", 25, 2, 26, 1))
sketch5.addConstraint(Sketcher.Constraint("Coincident", 26, 2, 27, 1))
sketch5.addConstraint(Sketcher.Constraint("Coincident", 27, 2, 24, 1))
sketch5.addConstraint(Sketcher.Constraint("Coincident", 28, 2, 29, 1))
sketch5.addConstraint(Sketcher.Constraint("Coincident", 29, 2, 30, 1))
sketch5.addConstraint(Sketcher.Constraint("Coincident", 30, 2, 31, 1))
sketch5.addConstraint(Sketcher.Constraint("Coincident", 31, 2, 28, 1))
sketch5.addConstraint(Sketcher.Constraint("Coincident", 32, 2, 33, 1))
sketch5.addConstraint(Sketcher.Constraint("Coincident", 33, 2, 34, 1))
sketch5.addConstraint(Sketcher.Constraint("Coincident", 34, 2, 35, 1))
sketch5.addConstraint(Sketcher.Constraint("Coincident", 35, 2, 32, 1))
sketch5.addConstraint(Sketcher.Constraint("Coincident", 36, 2, 37, 1))
sketch5.addConstraint(Sketcher.Constraint("Coincident", 37, 2, 38, 1))
sketch5.addConstraint(Sketcher.Constraint("Coincident", 38, 2, 39, 1))
sketch5.addConstraint(Sketcher.Constraint("Coincident", 39, 2, 36, 1))
sketch5.addConstraint(Sketcher.Constraint("Horizontal", 0))
sketch5.addConstraint(Sketcher.Constraint("Vertical", 1))
sketch5.addConstraint(Sketcher.Constraint("Horizontal", 2))
sketch5.addConstraint(Sketcher.Constraint("Vertical", 3))
sketch5.addConstraint(Sketcher.Constraint("Vertical", 4))
sketch5.addConstraint(Sketcher.Constraint("Horizontal", 5))
sketch5.addConstraint(Sketcher.Constraint("Vertical", 6))
sketch5.addConstraint(Sketcher.Constraint("Horizontal", 7))
sketch5.addConstraint(Sketcher.Constraint("Vertical", 8))
sketch5.addConstraint(Sketcher.Constraint("Horizontal", 9))
sketch5.addConstraint(Sketcher.Constraint("Vertical", 10))
sketch5.addConstraint(Sketcher.Constraint("Horizontal", 11))
sketch5.addConstraint(Sketcher.Constraint("Vertical", 12))
sketch5.addConstraint(Sketcher.Constraint("Horizontal", 13))
sketch5.addConstraint(Sketcher.Constraint("Vertical", 14))
sketch5.addConstraint(Sketcher.Constraint("Horizontal", 15))
sketch5.addConstraint(Sketcher.Constraint("Vertical", 16))
sketch5.addConstraint(Sketcher.Constraint("Horizontal", 17))
sketch5.addConstraint(Sketcher.Constraint("Vertical", 18))
sketch5.addConstraint(Sketcher.Constraint("Horizontal", 19))
sketch5.addConstraint(Sketcher.Constraint("Vertical", 20))
sketch5.addConstraint(Sketcher.Constraint("Horizontal", 21))
sketch5.addConstraint(Sketcher.Constraint("Vertical", 22))
sketch5.addConstraint(Sketcher.Constraint("Horizontal", 23))
sketch5.addConstraint(Sketcher.Constraint("Vertical", 24))
sketch5.addConstraint(Sketcher.Constraint("Horizontal", 25))
sketch5.addConstraint(Sketcher.Constraint("Vertical", 26))
sketch5.addConstraint(Sketcher.Constraint("Horizontal", 27))
sketch5.addConstraint(Sketcher.Constraint("Vertical", 28))
sketch5.addConstraint(Sketcher.Constraint("Horizontal", 29))
sketch5.addConstraint(Sketcher.Constraint("Vertical", 30))
sketch5.addConstraint(Sketcher.Constraint("Horizontal", 31))
sketch5.addConstraint(Sketcher.Constraint("Vertical", 32))
sketch5.addConstraint(Sketcher.Constraint("Horizontal", 33))
sketch5.addConstraint(Sketcher.Constraint("Vertical", 34))
sketch5.addConstraint(Sketcher.Constraint("Horizontal", 35))
sketch5.addConstraint(Sketcher.Constraint("Vertical", 36))
sketch5.addConstraint(Sketcher.Constraint("Horizontal", 37))
sketch5.addConstraint(Sketcher.Constraint("Vertical", 38))
sketch5.addConstraint(Sketcher.Constraint("Horizontal", 39))
sketch5.addConstraint(Sketcher.Constraint("Symmetric", 2, 2, 38, 2, -1))
sketch5.addConstraint(Sketcher.Constraint("Vertical", 3, 2, 5, 2))
sketch5.addConstraint(Sketcher.Constraint("Vertical", 7, 2, 8, 2))
sketch5.addConstraint(Sketcher.Constraint("Vertical", 6, 2, 9, 2))
sketch5.addConstraint(Sketcher.Constraint("Vertical", 11, 2, 12, 2))
sketch5.addConstraint(Sketcher.Constraint("Vertical", 10, 2, 13, 2))
sketch5.addConstraint(Sketcher.Constraint("Vertical", 15, 2, 16, 2))
sketch5.addConstraint(Sketcher.Constraint("Vertical", 14, 2, 17, 2))
sketch5.addConstraint(Sketcher.Constraint("Vertical", 19, 2, 20, 2))
sketch5.addConstraint(Sketcher.Constraint("Vertical", 18, 2, 21, 2))
sketch5.addConstraint(Sketcher.Constraint("Vertical", 23, 2, 24, 2))
sketch5.addConstraint(Sketcher.Constraint("Vertical", 22, 2, 25, 2))
sketch5.addConstraint(Sketcher.Constraint("Vertical", 27, 2, 28, 2))
sketch5.addConstraint(Sketcher.Constraint("Vertical", 26, 2, 29, 2))
sketch5.addConstraint(Sketcher.Constraint("Vertical", 31, 2, 32, 2))
sketch5.addConstraint(Sketcher.Constraint("Vertical", 30, 2, 33, 2))
sketch5.addConstraint(Sketcher.Constraint("Vertical", 1, 2, 36, 2))
sketch5.addConstraint(Sketcher.Constraint("Equal", 6, 8))
sketch5.addConstraint(Sketcher.Constraint("Equal", 10, 12))
sketch5.addConstraint(Sketcher.Constraint("Equal", 14, 16))
sketch5.addConstraint(Sketcher.Constraint("Equal", 18, 20))
sketch5.addConstraint(Sketcher.Constraint("Equal", 22, 24))
sketch5.addConstraint(Sketcher.Constraint("Equal", 26, 28))
sketch5.addConstraint(Sketcher.Constraint("Equal", 30, 32))
sketch5.addConstraint(Sketcher.Constraint("DistanceX", 0, 1, 0, 2, Q("3.5 mm")))
sketch5.addConstraint(Sketcher.Constraint("DistanceX", 5, 2, 5, 1, Q("4.5 mm")))
sketch5.addConstraint(Sketcher.Constraint("DistanceY", 1, 1, 1, 2, Q("90.9 mm")))
sketch5.addConstraint(Sketcher.Constraint("DistanceY", 4, 1, 4, 2, Q("10.787 mm")))
sketch5.addConstraint(Sketcher.Constraint("DistanceX", 0, 2, -1, 1, Q("166.75 mm")))
sketch5.addConstraint(Sketcher.Constraint("DistanceY", -1, 1, 0, 2, Q("124.35 mm")))
sketch5.addConstraint(Sketcher.Constraint("DistanceY", 36, 1, 36, 2, Q("169.4365 mm")))
sketch5.addConstraint(Sketcher.Constraint("DistanceY", 12, 2, 7, 2, Q("30.213 mm")))
sketch5.addConstraint(Sketcher.Constraint("DistanceY", 16, 2, 11, 2, Q("30.213 mm")))
sketch5.addConstraint(Sketcher.Constraint("DistanceY", 20, 2, 15, 2, Q("30.213 mm")))
sketch5.addConstraint(Sketcher.Constraint("DistanceY", 24, 2, 19, 2, Q("30.213 mm")))
sketch5.addConstraint(Sketcher.Constraint("DistanceY", 28, 2, 23, 2, Q("30.213 mm")))
sketch5.addConstraint(Sketcher.Constraint("DistanceY", 32, 2, 27, 2, Q("30.213 mm")))
sketch5.addConstraint(Sketcher.Constraint("DistanceY", -1, 1, 4, 2, Q("112.9892 mm")))
sketch5.addConstraint(Sketcher.Constraint("DistanceY", -1, 1, 8, 2, Q("92.6438 mm")))
pocket4 = doc.addObject("PartDesign::Pocket", "Pocket003")
body.addObject(pocket4)
pocket4.Profile = sketch5
pocket4.Type = "ThroughAll"

sketch6 = doc.addObject("Sketcher::SketchObject", "Sketch005")
body.addObject(sketch6)
sketch6.AttachmentSupport = (doc.XY_Plane, [""])
sketch6.MapMode = "FlatFace"
sketch6.AttachmentOffset = App.Placement(App.Vector(0, 0, 3), App.Rotation())
sketch6.addGeometry(Part.Circle(App.Vector(-70, -225, 0), App.Vector(0, 0, 1), 2.2), False)
sketch6.addGeometry(Part.Circle(App.Vector(180, 0, 0), App.Vector(0, 0, 1), 2.2), False)
sketch6.addGeometry(Part.Circle(App.Vector(70, -225, 0), App.Vector(0, 0, 1), 2.2), False)
sketch6.addGeometry(Part.Circle(App.Vector(180, 115, 0), App.Vector(0, 0, 1), 2.2), False)
sketch6.addGeometry(Part.Circle(App.Vector(-70, 225, 0), App.Vector(0, 0, 1), 2.2), False)
sketch6.addGeometry(Part.Circle(App.Vector(70, 225, 0), App.Vector(0, 0, 1), 2.2), False)
sketch6.addGeometry(Part.Circle(App.Vector(180, -115, 0), App.Vector(0, 0, 1), 2.2), False)
sketch6.addConstraint(Sketcher.Constraint("Equal", 0, 1))
sketch6.addConstraint(Sketcher.Constraint("Equal", 1, 2))
sketch6.addConstraint(Sketcher.Constraint("Equal", 2, 3))
sketch6.addConstraint(Sketcher.Constraint("Equal", 3, 4))
sketch6.addConstraint(Sketcher.Constraint("Equal", 4, 5))
sketch6.addConstraint(Sketcher.Constraint("Equal", 5, 6))
sketch6.addConstraint(Sketcher.Constraint("Symmetric", 2, 3, 4, 3, -1, 1))
sketch6.addConstraint(Sketcher.Constraint("Symmetric", 0, 3, 5, 3, -1, 1))
sketch6.addConstraint(Sketcher.Constraint("Symmetric", 0, 3, 2, 3, -2))
sketch6.addConstraint(Sketcher.Constraint("Symmetric", 3, 3, 6, 3, -1))
sketch6.addConstraint(Sketcher.Constraint("PointOnObject", 1, 3, -1))
sketch6.addConstraint(Sketcher.Constraint("Vertical", 1, 3, 3, 3))
sketch6.addConstraint(Sketcher.Constraint("Diameter", 0, Q("4.5 mm")))
sketch6.addConstraint(Sketcher.Constraint("DistanceX", 0, 3, -1, 1, Q("70 mm")))
sketch6.addConstraint(Sketcher.Constraint("DistanceY", 0, 3, -1, 1, Q("225 mm")))
sketch6.addConstraint(Sketcher.Constraint("DistanceX", -1, 1, 1, 3, Q("180 mm")))
sketch6.addConstraint(Sketcher.Constraint("DistanceY", -1, 1, 3, 3, Q("115 mm")))
pocket5 = doc.addObject("PartDesign::Pocket", "Pocket004")
body.addObject(pocket5)
pocket5.Profile = sketch6
pocket5.Length = 3

sketch7 = doc.addObject("Sketcher::SketchObject", "Sketch006")
body.addObject(sketch7)
sketch7.AttachmentSupport = (doc.XY_Plane, [""])
sketch7.MapMode = "FlatFace"
sketch7.addGeometry(Part.Circle(App.Vector(24.6, 124.1, 0), App.Vector(0, 0, 1), 1.6), False)
sketch7.addGeometry(Part.Circle(App.Vector(24.6, 185.9, 0), App.Vector(0, 0, 1), 1.6), False)
sketch7.addGeometry(Part.Circle(App.Vector(101.2, 185.9, 0), App.Vector(0, 0, 1), 1.6), False)
sketch7.addGeometry(Part.Circle(App.Vector(101.2, 124.1, 0), App.Vector(0, 0, 1), 1.6), False)
sketch7.addConstraint(Sketcher.Constraint("Equal", 0, 1))
sketch7.addConstraint(Sketcher.Constraint("Equal", 1, 2))
sketch7.addConstraint(Sketcher.Constraint("Equal", 2, 3))
sketch7.addConstraint(Sketcher.Constraint("Horizontal", 1, 3, 2, 3))
sketch7.addConstraint(Sketcher.Constraint("Horizontal", 0, 3, 3, 3))
sketch7.addConstraint(Sketcher.Constraint("Vertical", 0, 3, 1, 3))
sketch7.addConstraint(Sketcher.Constraint("Vertical", 2, 3, 3, 3))
sketch7.addConstraint(Sketcher.Constraint("Diameter", 0, Q("3.2 mm")))
sketch7.addConstraint(Sketcher.Constraint("DistanceY", 0, 3, 1, 3, Q("61.72 mm")))
sketch7.addConstraint(Sketcher.Constraint("DistanceX", 1, 3, 2, 3, Q("76.6 mm")))
sketch7.addConstraint(Sketcher.Constraint("DistanceY", -1, 1, 0, 3, Q("124.14 mm")))
sketch7.addConstraint(Sketcher.Constraint("DistanceX", -1, 1, 0, 3, Q("24.625 mm")))
pocket6 = doc.addObject("PartDesign::Pocket", "Pocket005")
body.addObject(pocket6)
pocket6.Profile = sketch7
pocket6.Type = "ThroughAll"
pocket6.Reversed = True

doc.recompute()
